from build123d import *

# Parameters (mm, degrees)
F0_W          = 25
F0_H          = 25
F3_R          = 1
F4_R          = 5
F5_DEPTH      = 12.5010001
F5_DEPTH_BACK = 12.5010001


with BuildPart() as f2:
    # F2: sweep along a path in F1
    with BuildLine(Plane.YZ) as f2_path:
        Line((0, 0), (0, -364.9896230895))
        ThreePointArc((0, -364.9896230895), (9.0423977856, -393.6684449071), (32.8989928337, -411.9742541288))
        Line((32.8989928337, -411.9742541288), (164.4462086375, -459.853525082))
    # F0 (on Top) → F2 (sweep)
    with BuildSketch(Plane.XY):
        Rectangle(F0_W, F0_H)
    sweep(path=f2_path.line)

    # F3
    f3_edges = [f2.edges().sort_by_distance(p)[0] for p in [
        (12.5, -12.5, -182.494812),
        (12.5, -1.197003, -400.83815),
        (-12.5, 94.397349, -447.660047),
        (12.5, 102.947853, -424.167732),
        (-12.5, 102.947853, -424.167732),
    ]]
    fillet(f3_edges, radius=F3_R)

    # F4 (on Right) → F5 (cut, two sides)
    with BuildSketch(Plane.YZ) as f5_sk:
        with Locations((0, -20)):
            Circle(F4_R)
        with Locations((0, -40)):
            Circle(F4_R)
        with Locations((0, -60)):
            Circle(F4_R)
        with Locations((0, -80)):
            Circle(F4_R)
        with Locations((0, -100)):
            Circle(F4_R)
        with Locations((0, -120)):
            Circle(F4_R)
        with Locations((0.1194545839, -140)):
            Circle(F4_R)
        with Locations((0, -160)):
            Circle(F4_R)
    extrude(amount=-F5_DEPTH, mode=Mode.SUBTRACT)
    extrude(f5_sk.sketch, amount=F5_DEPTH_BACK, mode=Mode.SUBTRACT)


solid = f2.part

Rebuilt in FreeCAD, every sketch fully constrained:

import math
import FreeCAD as App
import Part
import Sketcher

V = App.Vector
Q = App.Units.Quantity


def edges_at(feature, points):
    """Names of the edges that pass closest to the given points."""
    edges = feature.Shape.Edges
    near = lambda p: min(range(len(edges)), key=lambda i: edges[i].distToShape(Part.Vertex(*p))[0])
    return sorted({f"Edge{near(p) + 1}" for p in points})


def add_polygon(sketch, points):
    """Adds a closed chain of lines whose ends are joined by coincident constraints."""
    first, n = sketch.GeometryCount, len(points)
    for a, b in zip(points, points[1:] + points[:1]):
        sketch.addGeometry(Part.LineSegment(App.Vector(*a, 0), App.Vector(*b, 0)), False)
    for i in range(n):
        sketch.addConstraint(Sketcher.Constraint("Coincident", first + i, 2, first + (i + 1) % n, 1))

doc = App.newDocument("Part")
body = doc.addObject("PartDesign::Body", "Body")

# Sketch on XY plane
sketch1 = body.newObject("Sketcher::SketchObject", "Sketch")
sketch1.AttachmentSupport = (doc.getObject("XY_Plane"), [""])
sketch1.MapMode = "FlatFace"
add_polygon(sketch1, [(-12, 12), (-12, -12), (12, -12), (12, 12)])  # lines 0-3
sketch1.addConstraint([
    Sketcher.Constraint("Vertical", 0),
    Sketcher.Constraint("Horizontal", 1),
    Sketcher.Constraint("Vertical", 2),
    Sketcher.Constraint("Horizontal", 3),
    Sketcher.Constraint("Symmetric", 0, 2, 2, 2, -1, 1),
    Sketcher.Constraint("Equal", 3, 0),
    Sketcher.Constraint("DistanceX", 1, 1, 1, 2, 25.0),
])

# Sketch on YZ plane
sketch2 = body.newObject("Sketcher::SketchObject", "Sketch001")
sketch2.AttachmentSupport = (doc.getObject("YZ_Plane"), [""])
sketch2.MapMode = "FlatFace"
sketch2.addGeometry([
    Part.LineSegment(V(0, 0, 0), V(0, -365, 0)),
    Part.ArcOfCircle(Part.Circle(V(50, -365, 0), V(0, 0, 1), 50), math.radians(-180), math.radians(-110)),
    Part.LineSegment(V(33, -412, 0), V(164, -460, 0)),
], False)
sketch2.addConstraint([
    Sketcher.Constraint("Tangent", 0, 2, 1, 1),
    Sketcher.Constraint("Tangent", 1, 2, 2, 1),
    Sketcher.Constraint("Vertical", 0),
    Sketcher.Constraint("Coincident", 0, 1, -1, 1),
    Sketcher.Constraint("Radius", 1, 50.0),
    Sketcher.Constraint("Angle", 2, Q("-20 deg")),
    Sketcher.Constraint("DistanceY", 2, 2, 1, 3, 94.863902),
    Sketcher.Constraint("DistanceY", 0, 2, 0, 1, 364.989623),
])
doc.recompute()

additivepipe = body.newObject("PartDesign::AdditivePipe", "AdditivePipe")
additivepipe.Profile = sketch1
additivepipe.Spine = (sketch2, ["Edge1", "Edge2", "Edge3"])
doc.recompute()

fillet = body.newObject("PartDesign::Fillet", "Fillet")
fillet.Base = (additivepipe, edges_at(additivepipe, [
    (12.5, -12.5, -182.495),
    (12.5, -1.197, -400.838),
    (-12.5, 94.397, -447.66),
    (12.5, 102.948, -424.168),
    (-12.5, 102.948, -424.168),
]))
fillet.Radius = 1

# Sketch on YZ plane
sketch3 = body.newObject("Sketcher::SketchObject", "Sketch002")
sketch3.AttachmentSupport = (doc.getObject("YZ_Plane"), [""])
sketch3.MapMode = "FlatFace"
sketch3.addGeometry([
    Part.Circle(V(0, -20, 0), V(0, 0, 1), 5),  # 0
    Part.Circle(V(0, -40, 0), V(0, 0, 1), 5),  # 1
    Part.Circle(V(0, -60, 0), V(0, 0, 1), 5),  # 2
    Part.Circle(V(0, -80, 0), V(0, 0, 1), 5),  # 3
    Part.Circle(V(0, -100, 0), V(0, 0, 1), 5),  # 4
    Part.Circle(V(0, -120, 0), V(0, 0, 1), 5),  # 5
    Part.Circle(V(0, -140, 0), V(0, 0, 1), 5),  # 6
    Part.Circle(V(0, -160, 0), V(0, 0, 1), 5),  # 7
], False)
sketch3.addConstraint([
    Sketcher.Constraint("Equal", 0, 1),
    Sketcher.Constraint("Equal", 1, 2),
    Sketcher.Constraint("Equal", 2, 3),
    Sketcher.Constraint("Equal", 3, 4),
    Sketcher.Constraint("Equal", 4, 5),
    Sketcher.Constraint("Equal", 5, 6),
    Sketcher.Constraint("Equal", 6, 7),
    Sketcher.Constraint("PointOnObject", 0, 3, -2),
    Sketcher.Constraint("PointOnObject", 1, 3, -2),
    Sketcher.Constraint("PointOnObject", 2, 3, -2),
    Sketcher.Constraint("PointOnObject", 3, 3, -2),
    Sketcher.Constraint("PointOnObject", 4, 3, -2),
    Sketcher.Constraint("PointOnObject", 5, 3, -2),
    Sketcher.Constraint("PointOnObject", 7, 3, -2),
    Sketcher.Constraint("Diameter", 0, 10.0),
    Sketcher.Constraint("DistanceY", 0, 3, -1, 1, 20.0),
    Sketcher.Constraint("DistanceY", 1, 3, -1, 1, 40.0),
    Sketcher.Constraint("DistanceY", 2, 3, -1, 1, 60.0),
    Sketcher.Constraint("DistanceY", 3, 3, -1, 1, 80.0),
    Sketcher.Constraint("DistanceY", 4, 3, -1, 1, 100.0),
    Sketcher.Constraint("DistanceY", 5, 3, -1, 1, 120.0),
    Sketcher.Constraint("DistanceY", 6, 3, -1, 1, 140.0),
    Sketcher.Constraint("DistanceY", 7, 3, -1, 1, 160.0),
    Sketcher.Constraint("DistanceX", -1, 1, 6, 3, 0.119455),
])
pocket1 = body.newObject("PartDesign::Pocket", "Pocket")
pocket1.Profile = sketch3
pocket1.Type = "ThroughAll"
pocket1.Midplane = True

doc.recompute()
